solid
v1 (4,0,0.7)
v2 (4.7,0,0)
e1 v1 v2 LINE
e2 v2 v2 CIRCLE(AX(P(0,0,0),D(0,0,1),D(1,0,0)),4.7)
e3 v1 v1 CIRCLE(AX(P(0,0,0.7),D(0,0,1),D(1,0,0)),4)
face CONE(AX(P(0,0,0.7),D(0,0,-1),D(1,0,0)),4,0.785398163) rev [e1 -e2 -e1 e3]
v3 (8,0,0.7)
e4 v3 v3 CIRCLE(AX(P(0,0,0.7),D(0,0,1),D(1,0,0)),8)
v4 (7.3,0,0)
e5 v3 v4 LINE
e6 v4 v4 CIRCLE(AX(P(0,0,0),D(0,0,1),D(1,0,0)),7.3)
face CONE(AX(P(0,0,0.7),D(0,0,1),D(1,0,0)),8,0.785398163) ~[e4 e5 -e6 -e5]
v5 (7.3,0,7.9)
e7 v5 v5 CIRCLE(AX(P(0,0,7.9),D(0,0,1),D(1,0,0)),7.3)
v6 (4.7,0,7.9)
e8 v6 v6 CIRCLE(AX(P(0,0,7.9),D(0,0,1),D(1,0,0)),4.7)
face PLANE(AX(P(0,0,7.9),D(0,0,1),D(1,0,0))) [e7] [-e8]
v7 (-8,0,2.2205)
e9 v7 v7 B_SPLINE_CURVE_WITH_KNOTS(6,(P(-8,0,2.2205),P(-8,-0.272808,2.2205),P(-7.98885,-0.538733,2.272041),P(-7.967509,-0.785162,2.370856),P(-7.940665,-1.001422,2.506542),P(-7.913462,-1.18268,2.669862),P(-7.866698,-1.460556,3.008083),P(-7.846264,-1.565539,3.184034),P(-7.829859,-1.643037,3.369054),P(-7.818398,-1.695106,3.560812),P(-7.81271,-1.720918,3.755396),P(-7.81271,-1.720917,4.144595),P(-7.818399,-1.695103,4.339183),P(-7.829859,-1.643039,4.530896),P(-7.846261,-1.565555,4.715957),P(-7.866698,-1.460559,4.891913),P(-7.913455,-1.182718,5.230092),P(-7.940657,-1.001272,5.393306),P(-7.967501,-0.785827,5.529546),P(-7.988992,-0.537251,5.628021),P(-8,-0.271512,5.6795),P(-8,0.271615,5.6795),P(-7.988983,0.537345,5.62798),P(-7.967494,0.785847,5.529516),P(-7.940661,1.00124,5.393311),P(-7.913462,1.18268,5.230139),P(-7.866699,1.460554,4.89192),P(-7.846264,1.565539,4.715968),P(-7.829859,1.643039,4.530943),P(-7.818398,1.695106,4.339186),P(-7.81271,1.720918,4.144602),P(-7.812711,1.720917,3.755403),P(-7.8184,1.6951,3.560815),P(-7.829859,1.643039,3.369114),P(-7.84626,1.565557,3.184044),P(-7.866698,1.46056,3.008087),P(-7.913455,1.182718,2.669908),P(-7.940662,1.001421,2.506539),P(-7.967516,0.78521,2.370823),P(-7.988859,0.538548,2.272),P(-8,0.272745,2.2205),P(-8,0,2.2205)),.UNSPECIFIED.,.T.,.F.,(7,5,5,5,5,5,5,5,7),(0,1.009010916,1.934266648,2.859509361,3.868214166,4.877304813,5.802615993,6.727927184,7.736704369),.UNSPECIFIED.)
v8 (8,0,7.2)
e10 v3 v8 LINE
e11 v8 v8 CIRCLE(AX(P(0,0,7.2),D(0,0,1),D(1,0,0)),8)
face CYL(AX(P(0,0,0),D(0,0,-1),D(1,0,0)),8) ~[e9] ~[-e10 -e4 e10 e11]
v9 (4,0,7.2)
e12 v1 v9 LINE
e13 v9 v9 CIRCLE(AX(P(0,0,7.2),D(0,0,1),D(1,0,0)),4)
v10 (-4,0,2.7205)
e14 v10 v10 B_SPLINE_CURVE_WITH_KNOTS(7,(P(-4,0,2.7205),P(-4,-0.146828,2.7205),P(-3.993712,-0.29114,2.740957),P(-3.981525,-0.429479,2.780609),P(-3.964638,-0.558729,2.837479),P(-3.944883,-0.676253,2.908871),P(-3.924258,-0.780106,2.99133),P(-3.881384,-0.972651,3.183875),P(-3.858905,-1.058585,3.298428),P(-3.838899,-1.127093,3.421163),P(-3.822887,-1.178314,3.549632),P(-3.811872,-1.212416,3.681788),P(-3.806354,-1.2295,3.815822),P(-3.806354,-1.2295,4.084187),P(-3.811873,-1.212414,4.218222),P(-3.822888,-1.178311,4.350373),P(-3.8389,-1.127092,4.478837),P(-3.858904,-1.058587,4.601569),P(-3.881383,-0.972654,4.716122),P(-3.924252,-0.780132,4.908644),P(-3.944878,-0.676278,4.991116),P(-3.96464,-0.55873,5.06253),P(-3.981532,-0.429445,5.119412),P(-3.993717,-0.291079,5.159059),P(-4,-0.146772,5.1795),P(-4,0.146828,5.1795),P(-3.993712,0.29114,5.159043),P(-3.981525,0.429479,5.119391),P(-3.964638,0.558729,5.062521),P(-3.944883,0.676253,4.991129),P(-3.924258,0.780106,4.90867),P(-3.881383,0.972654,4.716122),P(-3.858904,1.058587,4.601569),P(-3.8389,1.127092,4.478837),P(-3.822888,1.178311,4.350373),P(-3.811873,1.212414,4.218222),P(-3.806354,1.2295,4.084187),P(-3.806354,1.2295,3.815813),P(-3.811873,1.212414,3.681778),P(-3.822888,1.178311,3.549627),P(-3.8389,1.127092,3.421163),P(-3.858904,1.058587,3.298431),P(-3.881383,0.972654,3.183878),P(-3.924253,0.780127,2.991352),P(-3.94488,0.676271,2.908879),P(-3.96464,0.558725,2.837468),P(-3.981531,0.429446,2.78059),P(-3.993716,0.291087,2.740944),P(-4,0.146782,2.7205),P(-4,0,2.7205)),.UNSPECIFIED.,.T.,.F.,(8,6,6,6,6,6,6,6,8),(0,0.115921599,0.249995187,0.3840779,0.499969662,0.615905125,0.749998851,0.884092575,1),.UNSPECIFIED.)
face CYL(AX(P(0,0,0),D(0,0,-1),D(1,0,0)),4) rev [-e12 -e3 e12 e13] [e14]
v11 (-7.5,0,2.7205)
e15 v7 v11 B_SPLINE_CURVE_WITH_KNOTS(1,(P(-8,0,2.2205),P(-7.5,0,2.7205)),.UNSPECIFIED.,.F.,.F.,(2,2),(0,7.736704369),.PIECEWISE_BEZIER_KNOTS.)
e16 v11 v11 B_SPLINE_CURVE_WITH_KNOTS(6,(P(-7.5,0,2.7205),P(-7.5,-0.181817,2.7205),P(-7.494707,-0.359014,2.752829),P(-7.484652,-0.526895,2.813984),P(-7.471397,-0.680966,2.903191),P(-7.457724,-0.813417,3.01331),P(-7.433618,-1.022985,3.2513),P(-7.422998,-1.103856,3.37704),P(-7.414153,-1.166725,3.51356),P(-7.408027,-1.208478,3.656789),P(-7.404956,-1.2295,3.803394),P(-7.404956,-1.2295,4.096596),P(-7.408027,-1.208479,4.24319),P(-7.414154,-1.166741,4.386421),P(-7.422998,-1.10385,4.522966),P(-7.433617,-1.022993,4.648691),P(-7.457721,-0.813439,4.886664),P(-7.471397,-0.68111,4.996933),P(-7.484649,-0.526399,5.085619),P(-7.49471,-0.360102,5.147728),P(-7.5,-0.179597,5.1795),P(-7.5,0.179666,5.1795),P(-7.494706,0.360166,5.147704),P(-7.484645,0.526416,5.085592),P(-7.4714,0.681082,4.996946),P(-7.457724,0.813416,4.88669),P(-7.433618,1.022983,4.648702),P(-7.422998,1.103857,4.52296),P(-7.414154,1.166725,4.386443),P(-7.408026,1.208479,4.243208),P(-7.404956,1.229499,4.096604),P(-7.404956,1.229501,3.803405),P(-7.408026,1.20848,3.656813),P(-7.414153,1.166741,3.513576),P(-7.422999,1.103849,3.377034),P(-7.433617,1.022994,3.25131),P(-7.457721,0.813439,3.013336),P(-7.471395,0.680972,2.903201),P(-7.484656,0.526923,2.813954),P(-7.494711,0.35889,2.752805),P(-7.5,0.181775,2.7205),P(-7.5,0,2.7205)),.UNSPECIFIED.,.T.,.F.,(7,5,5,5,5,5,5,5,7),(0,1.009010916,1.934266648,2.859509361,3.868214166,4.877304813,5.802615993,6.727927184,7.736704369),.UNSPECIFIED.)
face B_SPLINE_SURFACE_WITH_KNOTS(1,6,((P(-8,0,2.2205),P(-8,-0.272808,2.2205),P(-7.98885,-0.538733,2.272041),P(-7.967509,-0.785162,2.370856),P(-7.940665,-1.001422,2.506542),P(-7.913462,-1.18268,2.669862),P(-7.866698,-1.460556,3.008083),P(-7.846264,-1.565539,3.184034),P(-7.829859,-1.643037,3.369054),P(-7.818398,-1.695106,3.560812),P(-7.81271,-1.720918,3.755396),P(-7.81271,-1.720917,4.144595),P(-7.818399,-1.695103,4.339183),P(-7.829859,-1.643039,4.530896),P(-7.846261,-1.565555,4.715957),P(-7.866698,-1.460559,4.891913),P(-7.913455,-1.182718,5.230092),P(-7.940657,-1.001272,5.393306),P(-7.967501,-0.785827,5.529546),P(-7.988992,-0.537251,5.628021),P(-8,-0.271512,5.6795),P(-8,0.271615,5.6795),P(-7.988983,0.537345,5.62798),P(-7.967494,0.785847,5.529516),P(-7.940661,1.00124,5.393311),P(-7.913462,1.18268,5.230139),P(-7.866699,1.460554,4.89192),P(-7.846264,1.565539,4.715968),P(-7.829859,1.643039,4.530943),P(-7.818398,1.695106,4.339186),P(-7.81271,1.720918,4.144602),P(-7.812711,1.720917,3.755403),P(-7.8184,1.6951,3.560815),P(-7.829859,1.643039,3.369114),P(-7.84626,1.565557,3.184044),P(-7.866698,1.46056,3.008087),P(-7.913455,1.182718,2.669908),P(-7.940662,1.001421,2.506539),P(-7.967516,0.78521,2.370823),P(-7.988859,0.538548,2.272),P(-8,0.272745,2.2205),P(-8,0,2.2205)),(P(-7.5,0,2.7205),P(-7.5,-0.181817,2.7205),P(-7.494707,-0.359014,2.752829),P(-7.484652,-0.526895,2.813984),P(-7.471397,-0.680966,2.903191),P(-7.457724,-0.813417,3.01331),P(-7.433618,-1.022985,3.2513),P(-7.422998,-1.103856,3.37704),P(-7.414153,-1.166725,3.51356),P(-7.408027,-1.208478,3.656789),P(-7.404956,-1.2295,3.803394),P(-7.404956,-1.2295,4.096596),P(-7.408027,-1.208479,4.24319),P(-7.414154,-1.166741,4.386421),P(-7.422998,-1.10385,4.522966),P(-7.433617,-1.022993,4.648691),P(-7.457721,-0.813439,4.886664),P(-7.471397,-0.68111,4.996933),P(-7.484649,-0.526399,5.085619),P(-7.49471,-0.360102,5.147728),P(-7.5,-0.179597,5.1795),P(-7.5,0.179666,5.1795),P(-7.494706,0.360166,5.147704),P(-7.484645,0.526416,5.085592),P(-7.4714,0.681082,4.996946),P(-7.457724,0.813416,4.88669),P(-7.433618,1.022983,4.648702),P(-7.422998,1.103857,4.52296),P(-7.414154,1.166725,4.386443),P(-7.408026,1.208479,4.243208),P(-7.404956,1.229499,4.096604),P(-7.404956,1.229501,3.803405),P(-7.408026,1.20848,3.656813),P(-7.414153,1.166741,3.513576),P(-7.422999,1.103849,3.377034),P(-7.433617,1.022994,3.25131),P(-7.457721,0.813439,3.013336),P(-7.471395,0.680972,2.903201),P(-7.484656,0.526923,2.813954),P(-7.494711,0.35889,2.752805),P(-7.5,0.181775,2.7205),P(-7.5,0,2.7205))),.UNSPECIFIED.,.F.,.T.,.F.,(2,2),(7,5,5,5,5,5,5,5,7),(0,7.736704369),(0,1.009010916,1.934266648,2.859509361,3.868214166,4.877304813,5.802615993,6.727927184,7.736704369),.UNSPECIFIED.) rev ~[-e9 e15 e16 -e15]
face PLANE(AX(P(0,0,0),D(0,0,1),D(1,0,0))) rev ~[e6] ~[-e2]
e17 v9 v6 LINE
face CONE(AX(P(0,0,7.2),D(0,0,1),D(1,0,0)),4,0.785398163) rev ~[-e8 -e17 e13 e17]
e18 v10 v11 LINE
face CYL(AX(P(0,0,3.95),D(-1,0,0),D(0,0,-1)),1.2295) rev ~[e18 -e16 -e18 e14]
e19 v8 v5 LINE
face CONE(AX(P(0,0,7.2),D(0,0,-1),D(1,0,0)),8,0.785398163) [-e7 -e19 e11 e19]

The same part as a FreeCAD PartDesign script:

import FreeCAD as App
import Part
import Sketcher


def edges_at(feature, points):
    """Names of the edges that pass closest to the given points."""
    edges = feature.Shape.Edges
    near = lambda p: min(range(len(edges)), key=lambda i: edges[i].distToShape(Part.Vertex(*p))[0])
    return sorted({f"Edge{near(p) + 1}" for p in points})

doc = App.newDocument("Part")
body = doc.addObject("PartDesign::Body", "Body")

sketch1 = body.newObject("Sketcher::SketchObject", "Sketch")
sketch1.AttachmentSupport = (doc.getObject("XY_Plane"), [""])
sketch1.MapMode = "FlatFace"
sketch1.addGeometry([
    Part.Circle(App.Vector(0, 0, 0), App.Vector(0, 0, 1), 8),
    Part.Circle(App.Vector(0, 0, 0), App.Vector(0, 0, 1), 4),
], False)
sketch1.addConstraint([
    Sketcher.Constraint("Coincident", 0, 3, -1, 1),
    Sketcher.Constraint("Coincident", 1, 3, -1, 1),
    Sketcher.Constraint("Diameter", 0, 16.0),
    Sketcher.Constraint("Diameter", 1, 8.0),
])
pad1 = body.newObject("PartDesign::Pad", "Pad")
pad1.Profile = sketch1
pad1.Length = 7.9
doc.recompute()

chamfer = body.newObject("PartDesign::Chamfer", "Chamfer")
chamfer.Base = (pad1, edges_at(pad1, [
    (-8, 0, 0),
    (-8, 0, 7.9),
    (-4, 0, 0),
    (-4, 0, 7.9),
]))
chamfer.Size = 0.7

sketch2 = body.newObject("Sketcher::SketchObject", "Sketch001")
sketch2.AttachmentSupport = (doc.getObject("YZ_Plane"), [""])
sketch2.MapMode = "FlatFace"
sketch2.addGeometry(Part.Circle(App.Vector(0, 4, 0), App.Vector(0, 0, 1), 1.2), False)
sketch2.addConstraint([
    Sketcher.Constraint("PointOnObject", 0, 3, -2),
    Sketcher.Constraint("Diameter", 0, 2.459),
    Sketcher.Constraint("DistanceY", -1, 1, 0, 3, 3.95),
])
doc.recompute()
hole = body.newObject("PartDesign::Hole", "Hole")
hole.Profile = sketch2
hole.ThreadType = "None"
hole.Diameter = 2.459
hole.DepthType = "ThroughAll"
doc.recompute()

chamfer2 = body.newObject("PartDesign::Chamfer", "Chamfer001")
chamfer2.Base = (hole, edges_at(hole, [(-8, 0, 5.179)]))
chamfer2.Size = 0.5

doc.recompute()
